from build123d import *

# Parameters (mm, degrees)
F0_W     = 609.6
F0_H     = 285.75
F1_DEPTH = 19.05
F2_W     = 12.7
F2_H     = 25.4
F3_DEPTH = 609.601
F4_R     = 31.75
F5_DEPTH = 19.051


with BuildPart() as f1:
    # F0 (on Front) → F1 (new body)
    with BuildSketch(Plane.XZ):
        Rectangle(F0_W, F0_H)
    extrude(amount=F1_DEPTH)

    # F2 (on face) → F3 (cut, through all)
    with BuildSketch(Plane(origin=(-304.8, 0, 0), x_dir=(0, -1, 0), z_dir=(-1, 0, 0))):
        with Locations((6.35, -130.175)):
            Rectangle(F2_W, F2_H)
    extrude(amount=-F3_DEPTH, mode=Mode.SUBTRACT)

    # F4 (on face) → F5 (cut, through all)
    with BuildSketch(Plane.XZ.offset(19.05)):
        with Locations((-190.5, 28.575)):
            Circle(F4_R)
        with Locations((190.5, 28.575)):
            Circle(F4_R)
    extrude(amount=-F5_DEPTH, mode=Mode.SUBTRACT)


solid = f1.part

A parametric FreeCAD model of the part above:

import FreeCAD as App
import Part
import Sketcher

V = App.Vector
Q = App.Units.Quantity


def add_polygon(sketch, points):
    """Adds a closed chain of lines whose ends are joined by coincident constraints."""
    first, n = sketch.GeometryCount, len(points)
    for a, b in zip(points, points[1:] + points[:1]):
        sketch.addGeometry(Part.LineSegment(App.Vector(*a, 0), App.Vector(*b, 0)), False)
    for i in range(n):
        sketch.addConstraint(Sketcher.Constraint("Coincident", first + i, 2, first + (i + 1) % n, 1))

doc = App.newDocument("Part")
params = doc.addObject("Spreadsheet::Sheet", "Params")
for row, (alias, value) in enumerate([
    ("sketch1_width", "24 in"),
    ("sketch1_height", "11.25 in"),
    ("pad1_length", "0.75 in"),
    ("sketch2_height", "1 in"),
    ("sketch2_width", "0.5 in"),
    ("sketch3_diameter", "2.5 in"),
], start=1):
    params.set(f"A{row}", alias)
    params.set(f"B{row}", "=" + value)
    params.setAlias(f"B{row}", alias)

body = doc.addObject("PartDesign::Body", "Body")

sketch1 = body.newObject("Sketcher::SketchObject", "Sketch")
sketch1.AttachmentSupport = (doc.getObject("XZ_Plane"), [""])
sketch1.MapMode = "FlatFace"
add_polygon(sketch1, [(-304.8, 142.875), (-304.8, -142.875), (304.8, -142.875), (304.8, 142.875)])
sketch1.addConstraint(Sketcher.Constraint("Vertical", 0))
sketch1.addConstraint(Sketcher.Constraint("Horizontal", 1))
sketch1.addConstraint(Sketcher.Constraint("Vertical", 2))
sketch1.addConstraint(Sketcher.Constraint("Horizontal", 3))
sketch1.addConstraint(Sketcher.Constraint("Symmetric", 0, 2, 2, 2, -1, 1))
sketch1.addConstraint(Sketcher.Constraint("DistanceX", 1, 1, 1, 2, Q("24 in")))
sketch1.addConstraint(Sketcher.Constraint("DistanceY", 0, 2, 0, 1, Q("11.25 in")))
sketch1.setExpression("Constraints[9]", "Params.sketch1_width")
sketch1.setExpression("Constraints[10]", "Params.sketch1_height")
pad1 = body.newObject("PartDesign::Pad", "Pad")
pad1.Profile = sketch1
pad1.setExpression("Length", "Params.pad1_length")

sketch2 = body.newObject("Sketcher::SketchObject", "Sketch001")
sketch2.AttachmentSupport = (doc.getObject("YZ_Plane"), [""])
sketch2.MapMode = "FlatFace"
sketch2.AttachmentOffset = App.Placement(V(0, 0, -12 * 25.4), App.Rotation())
add_polygon(sketch2, [(0, -117.475), (0, -142.875), (-12.7, -142.875), (-12.7, -117.475)])
sketch2.addConstraint(Sketcher.Constraint("Vertical", 0))
sketch2.addConstraint(Sketcher.Constraint("Horizontal", 1))
sketch2.addConstraint(Sketcher.Constraint("Vertical", 2))
sketch2.addConstraint(Sketcher.Constraint("Horizontal", 3))
sketch2.addConstraint(Sketcher.Constraint("PointOnObject", 0, 2, -2))
sketch2.addConstraint(Sketcher.Constraint("DistanceY", 0, 2, 0, 1, Q("1 in")))
sketch2.addConstraint(Sketcher.Constraint("DistanceX", 1, 2, 1, 1, Q("0.5 in")))
sketch2.addConstraint(Sketcher.Constraint("DistanceY", 0, 2, -1, 1, Q("5.625 in")))
sketch2.setExpression("Constraints[9]", "Params.sketch2_height")
sketch2.setExpression("Constraints[10]", "Params.sketch2_width")
pocket1 = body.newObject("PartDesign::Pocket", "Pocket")
pocket1.Profile = sketch2
pocket1.Type = "ThroughAll"
pocket1.Reversed = True

sketch3 = body.newObject("Sketcher::SketchObject", "Sketch002")
sketch3.AttachmentSupport = (doc.getObject("XZ_Plane"), [""])
sketch3.MapMode = "FlatFace"
sketch3.AttachmentOffset = App.Placement(V(0, 0, 0.75 * 25.4), App.Rotation())
sketch3.addGeometry(Part.Circle(V(-190.5, 28.575, 0), V(0, 0, 1), 31.75), False)
sketch3.addGeometry(Part.Circle(V(190.5, 28.575, 0), V(0, 0, 1), 31.75), False)
sketch3.addConstraint(Sketcher.Constraint("Equal", 0, 1))
sketch3.addConstraint(Sketcher.Constraint("Symmetric", 0, 3, 1, 3, -2))
sketch3.addConstraint(Sketcher.Constraint("Diameter", 0, Q("2.5 in")))
sketch3.addConstraint(Sketcher.Constraint("DistanceX", 0, 3, 1, 3, Q("15 in")))
sketch3.addConstraint(Sketcher.Constraint("DistanceY", -1, 1, 0, 3, Q("1.125 in")))
sketch3.setExpression("Constraints[2]", "Params.sketch3_diameter")
pocket2 = body.newObject("PartDesign::Pocket", "Pocket001")
pocket2.Profile = sketch3
pocket2.Type = "ThroughAll"

doc.recompute()
